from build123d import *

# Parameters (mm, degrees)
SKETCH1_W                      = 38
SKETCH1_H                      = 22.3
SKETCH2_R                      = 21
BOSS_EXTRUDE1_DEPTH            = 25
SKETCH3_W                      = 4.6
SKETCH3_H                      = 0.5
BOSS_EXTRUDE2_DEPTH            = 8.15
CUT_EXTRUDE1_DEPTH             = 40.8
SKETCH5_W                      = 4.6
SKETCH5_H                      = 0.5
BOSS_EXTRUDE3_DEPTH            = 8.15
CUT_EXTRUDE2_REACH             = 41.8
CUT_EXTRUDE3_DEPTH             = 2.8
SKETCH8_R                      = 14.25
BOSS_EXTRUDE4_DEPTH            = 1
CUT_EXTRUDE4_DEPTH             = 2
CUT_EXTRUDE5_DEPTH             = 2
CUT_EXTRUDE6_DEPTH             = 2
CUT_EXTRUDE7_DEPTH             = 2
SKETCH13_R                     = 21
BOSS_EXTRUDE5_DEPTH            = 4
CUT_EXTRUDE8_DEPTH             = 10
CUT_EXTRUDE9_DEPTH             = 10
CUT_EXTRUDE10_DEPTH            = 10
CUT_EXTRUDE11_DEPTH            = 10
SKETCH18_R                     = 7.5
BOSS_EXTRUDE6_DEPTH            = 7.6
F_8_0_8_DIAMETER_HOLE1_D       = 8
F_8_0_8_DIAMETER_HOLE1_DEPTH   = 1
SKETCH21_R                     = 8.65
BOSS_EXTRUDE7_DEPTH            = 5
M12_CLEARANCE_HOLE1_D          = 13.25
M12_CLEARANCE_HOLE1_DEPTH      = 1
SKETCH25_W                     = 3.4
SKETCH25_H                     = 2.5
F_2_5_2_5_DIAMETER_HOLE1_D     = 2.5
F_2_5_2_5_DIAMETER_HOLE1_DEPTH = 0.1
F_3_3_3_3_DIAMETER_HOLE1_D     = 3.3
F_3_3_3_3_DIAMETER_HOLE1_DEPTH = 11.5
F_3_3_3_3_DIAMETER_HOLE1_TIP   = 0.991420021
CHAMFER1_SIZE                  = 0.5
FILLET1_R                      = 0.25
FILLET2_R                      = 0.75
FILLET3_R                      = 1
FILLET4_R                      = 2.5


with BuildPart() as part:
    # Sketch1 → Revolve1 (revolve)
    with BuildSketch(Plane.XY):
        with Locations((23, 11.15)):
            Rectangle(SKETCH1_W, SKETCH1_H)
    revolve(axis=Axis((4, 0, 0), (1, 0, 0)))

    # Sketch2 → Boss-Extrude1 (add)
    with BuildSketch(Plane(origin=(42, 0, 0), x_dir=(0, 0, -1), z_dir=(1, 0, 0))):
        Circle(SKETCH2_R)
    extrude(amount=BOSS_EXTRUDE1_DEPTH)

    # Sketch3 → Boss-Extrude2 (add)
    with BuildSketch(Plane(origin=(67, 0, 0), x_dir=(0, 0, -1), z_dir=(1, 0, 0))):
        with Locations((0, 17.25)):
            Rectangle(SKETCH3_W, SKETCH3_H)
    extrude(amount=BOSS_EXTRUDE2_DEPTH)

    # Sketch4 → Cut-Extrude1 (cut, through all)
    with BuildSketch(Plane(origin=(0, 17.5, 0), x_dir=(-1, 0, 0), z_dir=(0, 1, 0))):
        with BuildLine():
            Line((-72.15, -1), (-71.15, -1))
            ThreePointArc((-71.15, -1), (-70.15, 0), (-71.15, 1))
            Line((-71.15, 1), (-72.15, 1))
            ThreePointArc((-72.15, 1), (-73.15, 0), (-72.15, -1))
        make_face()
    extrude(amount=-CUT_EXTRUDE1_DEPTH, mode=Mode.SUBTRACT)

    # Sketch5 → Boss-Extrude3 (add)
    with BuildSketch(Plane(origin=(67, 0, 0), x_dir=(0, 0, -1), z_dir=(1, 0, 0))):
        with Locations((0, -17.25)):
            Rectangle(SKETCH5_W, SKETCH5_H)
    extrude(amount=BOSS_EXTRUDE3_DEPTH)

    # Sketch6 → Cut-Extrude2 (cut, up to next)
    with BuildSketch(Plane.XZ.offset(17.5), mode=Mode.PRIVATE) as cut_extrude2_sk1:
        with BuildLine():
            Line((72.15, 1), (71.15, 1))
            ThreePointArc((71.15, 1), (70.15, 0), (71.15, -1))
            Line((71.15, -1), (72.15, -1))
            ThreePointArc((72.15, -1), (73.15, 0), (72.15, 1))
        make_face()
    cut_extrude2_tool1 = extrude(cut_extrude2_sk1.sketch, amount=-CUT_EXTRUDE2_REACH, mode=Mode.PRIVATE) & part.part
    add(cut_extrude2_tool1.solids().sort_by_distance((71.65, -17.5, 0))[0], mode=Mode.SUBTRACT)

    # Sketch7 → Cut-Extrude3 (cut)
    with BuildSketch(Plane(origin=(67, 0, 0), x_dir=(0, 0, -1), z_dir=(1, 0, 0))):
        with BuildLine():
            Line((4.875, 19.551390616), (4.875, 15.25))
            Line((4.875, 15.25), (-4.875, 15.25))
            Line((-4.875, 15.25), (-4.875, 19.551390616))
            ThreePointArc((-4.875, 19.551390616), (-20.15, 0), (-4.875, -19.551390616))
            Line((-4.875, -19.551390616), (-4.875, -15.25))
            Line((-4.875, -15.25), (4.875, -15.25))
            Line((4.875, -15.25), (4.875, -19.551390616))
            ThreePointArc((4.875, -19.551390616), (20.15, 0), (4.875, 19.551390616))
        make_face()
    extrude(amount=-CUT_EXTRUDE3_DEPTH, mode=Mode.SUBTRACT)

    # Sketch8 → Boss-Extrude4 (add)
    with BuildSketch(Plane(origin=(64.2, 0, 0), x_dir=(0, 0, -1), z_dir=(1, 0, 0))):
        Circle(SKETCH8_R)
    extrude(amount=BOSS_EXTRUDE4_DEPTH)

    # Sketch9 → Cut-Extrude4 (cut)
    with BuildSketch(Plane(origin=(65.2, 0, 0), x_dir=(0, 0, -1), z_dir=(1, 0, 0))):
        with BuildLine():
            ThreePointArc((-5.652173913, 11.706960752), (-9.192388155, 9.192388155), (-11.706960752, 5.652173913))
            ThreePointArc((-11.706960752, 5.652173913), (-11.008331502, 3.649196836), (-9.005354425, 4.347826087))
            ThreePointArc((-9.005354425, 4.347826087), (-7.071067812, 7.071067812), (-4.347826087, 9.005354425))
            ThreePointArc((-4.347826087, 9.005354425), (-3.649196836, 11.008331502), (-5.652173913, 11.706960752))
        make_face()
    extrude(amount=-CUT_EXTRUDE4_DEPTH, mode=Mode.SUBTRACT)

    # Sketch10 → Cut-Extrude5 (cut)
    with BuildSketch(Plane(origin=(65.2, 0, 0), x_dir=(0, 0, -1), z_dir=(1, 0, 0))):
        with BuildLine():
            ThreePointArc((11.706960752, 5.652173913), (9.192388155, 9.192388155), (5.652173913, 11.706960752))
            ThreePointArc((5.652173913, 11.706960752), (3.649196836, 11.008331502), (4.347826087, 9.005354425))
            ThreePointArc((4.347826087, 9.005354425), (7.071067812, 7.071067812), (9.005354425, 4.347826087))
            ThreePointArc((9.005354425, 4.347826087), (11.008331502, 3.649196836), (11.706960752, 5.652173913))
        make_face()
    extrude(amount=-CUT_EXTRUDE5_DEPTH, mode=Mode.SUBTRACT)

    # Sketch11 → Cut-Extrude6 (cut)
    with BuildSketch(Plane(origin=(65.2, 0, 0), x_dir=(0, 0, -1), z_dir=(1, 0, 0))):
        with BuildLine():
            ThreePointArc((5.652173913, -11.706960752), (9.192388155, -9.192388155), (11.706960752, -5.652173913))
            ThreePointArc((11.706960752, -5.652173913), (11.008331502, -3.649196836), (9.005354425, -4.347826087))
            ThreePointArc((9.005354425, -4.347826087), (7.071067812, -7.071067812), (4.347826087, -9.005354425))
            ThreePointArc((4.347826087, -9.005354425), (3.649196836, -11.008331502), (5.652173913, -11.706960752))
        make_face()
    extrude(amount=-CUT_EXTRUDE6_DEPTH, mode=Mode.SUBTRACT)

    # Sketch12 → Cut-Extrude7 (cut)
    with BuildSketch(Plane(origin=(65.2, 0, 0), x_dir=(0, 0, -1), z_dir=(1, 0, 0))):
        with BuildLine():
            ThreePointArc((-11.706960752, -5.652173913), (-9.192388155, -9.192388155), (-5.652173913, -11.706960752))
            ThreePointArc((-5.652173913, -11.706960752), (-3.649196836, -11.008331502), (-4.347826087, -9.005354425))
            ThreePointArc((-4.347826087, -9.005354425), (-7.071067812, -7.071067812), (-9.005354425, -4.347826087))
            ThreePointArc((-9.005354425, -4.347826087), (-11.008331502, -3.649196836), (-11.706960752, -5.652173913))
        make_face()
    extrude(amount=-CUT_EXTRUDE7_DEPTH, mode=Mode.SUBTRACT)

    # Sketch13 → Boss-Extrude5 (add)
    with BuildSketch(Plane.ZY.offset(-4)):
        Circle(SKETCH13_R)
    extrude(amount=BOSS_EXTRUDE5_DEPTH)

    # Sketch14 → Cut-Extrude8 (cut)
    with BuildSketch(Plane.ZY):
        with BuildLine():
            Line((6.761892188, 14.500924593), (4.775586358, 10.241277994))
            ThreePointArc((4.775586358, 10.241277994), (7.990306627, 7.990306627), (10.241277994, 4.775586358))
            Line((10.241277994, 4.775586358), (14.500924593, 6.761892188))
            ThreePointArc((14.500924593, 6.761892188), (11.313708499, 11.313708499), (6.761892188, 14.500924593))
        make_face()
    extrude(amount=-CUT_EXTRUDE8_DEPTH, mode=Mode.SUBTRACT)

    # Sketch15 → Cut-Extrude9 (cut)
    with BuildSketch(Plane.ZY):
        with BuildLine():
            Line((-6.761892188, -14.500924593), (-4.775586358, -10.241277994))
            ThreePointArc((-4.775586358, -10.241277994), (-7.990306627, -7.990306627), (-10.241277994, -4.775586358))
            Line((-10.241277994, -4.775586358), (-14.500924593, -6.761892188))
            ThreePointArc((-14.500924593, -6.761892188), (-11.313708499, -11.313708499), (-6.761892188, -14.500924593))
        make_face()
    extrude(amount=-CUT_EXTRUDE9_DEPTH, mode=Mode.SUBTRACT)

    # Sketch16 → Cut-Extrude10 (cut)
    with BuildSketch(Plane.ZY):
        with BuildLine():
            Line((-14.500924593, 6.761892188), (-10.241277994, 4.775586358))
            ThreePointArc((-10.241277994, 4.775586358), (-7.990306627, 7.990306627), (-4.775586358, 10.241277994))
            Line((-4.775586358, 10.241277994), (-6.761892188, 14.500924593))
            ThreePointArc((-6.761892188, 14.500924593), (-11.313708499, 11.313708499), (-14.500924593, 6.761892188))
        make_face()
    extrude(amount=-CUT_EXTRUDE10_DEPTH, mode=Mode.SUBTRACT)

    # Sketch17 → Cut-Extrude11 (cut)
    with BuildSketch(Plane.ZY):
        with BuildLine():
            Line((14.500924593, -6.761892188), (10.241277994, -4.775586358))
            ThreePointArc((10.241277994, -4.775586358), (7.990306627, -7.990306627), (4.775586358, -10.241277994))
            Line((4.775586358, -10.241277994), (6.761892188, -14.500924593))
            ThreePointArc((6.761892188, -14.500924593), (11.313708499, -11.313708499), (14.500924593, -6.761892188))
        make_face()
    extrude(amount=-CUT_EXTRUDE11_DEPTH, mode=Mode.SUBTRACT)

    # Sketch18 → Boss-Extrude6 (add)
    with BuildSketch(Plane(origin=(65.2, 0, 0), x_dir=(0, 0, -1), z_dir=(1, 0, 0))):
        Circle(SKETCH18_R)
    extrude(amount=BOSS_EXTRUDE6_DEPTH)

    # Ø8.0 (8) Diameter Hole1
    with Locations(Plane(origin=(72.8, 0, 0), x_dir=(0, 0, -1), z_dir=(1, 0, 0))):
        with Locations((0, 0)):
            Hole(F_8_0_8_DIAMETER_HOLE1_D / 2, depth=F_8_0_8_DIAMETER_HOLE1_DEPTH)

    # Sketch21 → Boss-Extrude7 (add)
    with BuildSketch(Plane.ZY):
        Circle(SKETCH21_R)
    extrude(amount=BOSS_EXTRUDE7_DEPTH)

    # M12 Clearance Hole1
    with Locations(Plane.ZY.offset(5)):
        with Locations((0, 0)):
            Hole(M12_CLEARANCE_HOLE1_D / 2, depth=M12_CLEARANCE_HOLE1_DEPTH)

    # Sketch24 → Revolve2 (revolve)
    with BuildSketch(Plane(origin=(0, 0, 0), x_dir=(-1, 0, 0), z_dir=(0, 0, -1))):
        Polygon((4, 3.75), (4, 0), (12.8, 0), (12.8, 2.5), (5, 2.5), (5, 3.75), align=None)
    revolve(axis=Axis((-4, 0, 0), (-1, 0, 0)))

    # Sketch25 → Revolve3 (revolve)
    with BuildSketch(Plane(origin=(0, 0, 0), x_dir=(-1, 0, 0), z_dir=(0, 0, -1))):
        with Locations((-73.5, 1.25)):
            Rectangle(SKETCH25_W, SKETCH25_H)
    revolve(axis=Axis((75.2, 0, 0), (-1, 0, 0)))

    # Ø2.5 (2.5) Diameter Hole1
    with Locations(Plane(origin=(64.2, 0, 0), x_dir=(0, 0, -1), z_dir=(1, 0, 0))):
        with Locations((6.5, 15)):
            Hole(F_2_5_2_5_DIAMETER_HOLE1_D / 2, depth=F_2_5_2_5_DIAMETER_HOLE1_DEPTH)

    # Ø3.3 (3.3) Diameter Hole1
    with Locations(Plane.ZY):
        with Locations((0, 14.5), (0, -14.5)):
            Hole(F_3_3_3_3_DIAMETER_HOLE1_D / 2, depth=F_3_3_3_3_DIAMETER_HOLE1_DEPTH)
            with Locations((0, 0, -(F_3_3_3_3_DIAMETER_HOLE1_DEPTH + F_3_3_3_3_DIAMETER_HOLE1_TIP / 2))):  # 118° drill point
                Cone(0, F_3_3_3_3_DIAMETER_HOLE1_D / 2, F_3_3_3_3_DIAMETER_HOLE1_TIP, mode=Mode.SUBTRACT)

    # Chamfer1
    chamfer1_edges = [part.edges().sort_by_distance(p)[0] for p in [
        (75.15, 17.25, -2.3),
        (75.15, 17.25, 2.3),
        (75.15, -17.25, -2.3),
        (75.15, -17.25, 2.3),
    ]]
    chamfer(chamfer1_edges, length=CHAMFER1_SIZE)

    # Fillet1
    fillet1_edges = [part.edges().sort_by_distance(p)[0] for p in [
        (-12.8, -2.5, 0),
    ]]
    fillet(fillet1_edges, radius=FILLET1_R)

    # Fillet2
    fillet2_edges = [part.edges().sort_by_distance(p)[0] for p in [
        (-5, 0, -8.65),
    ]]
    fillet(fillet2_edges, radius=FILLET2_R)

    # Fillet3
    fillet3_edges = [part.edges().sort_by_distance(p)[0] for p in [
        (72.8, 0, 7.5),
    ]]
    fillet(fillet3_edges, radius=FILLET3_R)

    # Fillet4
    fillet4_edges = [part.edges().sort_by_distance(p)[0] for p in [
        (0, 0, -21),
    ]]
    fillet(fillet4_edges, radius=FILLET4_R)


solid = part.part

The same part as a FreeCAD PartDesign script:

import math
import FreeCAD as App
import Part
import Sketcher

V = App.Vector
Q = App.Units.Quantity


def edges_at(feature, points):
    """Names of the edges that pass closest to the given points."""
    edges = feature.Shape.Edges
    near = lambda p: min(range(len(edges)), key=lambda i: edges[i].distToShape(Part.Vertex(*p))[0])
    return sorted({f"Edge{near(p) + 1}" for p in points})

doc = App.newDocument("Part")
body = doc.addObject("PartDesign::Body", "Body")

# Sketch on XY plane
sketch1 = doc.addObject("Sketcher::SketchObject", "Sketch")
body.addObject(sketch1)
sketch1.AttachmentSupport = (doc.XY_Plane, [""])
sketch1.MapMode = "FlatFace"
sketch1.addGeometry([
    Part.LineSegment(V(4, 22, 0), V(4, 0, 0)),
    Part.LineSegment(V(4, 0, 0), V(42, 0, 0)),
    Part.LineSegment(V(42, 0, 0), V(42, 22, 0)),
    Part.LineSegment(V(42, 22, 0), V(4, 22, 0)),
], False)
sketch1.addConstraint([
    Sketcher.Constraint("Coincident", 0, 2, 1, 1),
    Sketcher.Constraint("Coincident", 1, 2, 2, 1),
    Sketcher.Constraint("Coincident", 2, 2, 3, 1),
    Sketcher.Constraint("Coincident", 3, 2, 0, 1),
    Sketcher.Constraint("Vertical", 0),
    Sketcher.Constraint("Horizontal", 1),
    Sketcher.Constraint("Vertical", 2),
    Sketcher.Constraint("Horizontal", 3),
    Sketcher.Constraint("PointOnObject", 0, 2, -1),
    Sketcher.Constraint("DistanceX", 1, 1, 1, 2, 38.0),
    Sketcher.Constraint("DistanceY", 0, 2, 0, 1, 22.3),
    Sketcher.Constraint("DistanceX", -1, 1, 0, 2, 4.0),
])
revolution = doc.addObject("PartDesign::Revolution", "Revolution")
body.addObject(revolution)
revolution.Profile = sketch1
revolution.ReferenceAxis = (sketch1, ["H_Axis"])
revolution.Angle = 360

# Sketch on YZ plane
sketch2 = doc.addObject("Sketcher::SketchObject", "Sketch001")
body.addObject(sketch2)
sketch2.AttachmentSupport = (doc.YZ_Plane, [""])
sketch2.MapMode = "FlatFace"
sketch2.AttachmentOffset = App.Placement(V(0, 0, 42), App.Rotation())
sketch2.addGeometry(Part.Circle(V(0, 0, 0), V(0, 0, 1), 21), False)
sketch2.addConstraint([
    Sketcher.Constraint("Coincident", 0, 3, -1, 1),
    Sketcher.Constraint("Diameter", 0, 42.0),
])
pad1 = doc.addObject("PartDesign::Pad", "Pad")
body.addObject(pad1)
pad1.Profile = sketch2
pad1.Length = 25

# Sketch on YZ plane
sketch3 = doc.addObject("Sketcher::SketchObject", "Sketch002")
body.addObject(sketch3)
sketch3.AttachmentSupport = (doc.YZ_Plane, [""])
sketch3.MapMode = "FlatFace"
sketch3.AttachmentOffset = App.Placement(V(0, 0, 67), App.Rotation())
sketch3.addGeometry([
    Part.LineSegment(V(17.5, 2.3, 0), V(17, 2.3, 0)),
    Part.LineSegment(V(17, 2.3, 0), V(17, -2.3, 0)),
    Part.LineSegment(V(17, -2.3, 0), V(17.5, -2.3, 0)),
    Part.LineSegment(V(17.5, -2.3, 0), V(17.5, 2.3, 0)),
], False)
sketch3.addConstraint([
    Sketcher.Constraint("Coincident", 0, 2, 1, 1),
    Sketcher.Constraint("Coincident", 1, 2, 2, 1),
    Sketcher.Constraint("Coincident", 2, 2, 3, 1),
    Sketcher.Constraint("Coincident", 3, 2, 0, 1),
    Sketcher.Constraint("Horizontal", 0),
    Sketcher.Constraint("Vertical", 1),
    Sketcher.Constraint("Horizontal", 2),
    Sketcher.Constraint("Vertical", 3),
    Sketcher.Constraint("DistanceX", 0, 2, 0, 1, 0.5),
    Sketcher.Constraint("DistanceY", 1, 2, 1, 1, 4.6),
    Sketcher.Constraint("DistanceX", -1, 1, 0, 2, 17.0),
    Sketcher.Constraint("DistanceY", -1, 1, 0, 2, 2.3),
])
pad2 = doc.addObject("PartDesign::Pad", "Pad001")
body.addObject(pad2)
pad2.Profile = sketch3
pad2.Length = 8.15

# Sketch on XZ plane
sketch4 = doc.addObject("Sketcher::SketchObject", "Sketch003")
body.addObject(sketch4)
sketch4.AttachmentSupport = (doc.XZ_Plane, [""])
sketch4.MapMode = "FlatFace"
sketch4.AttachmentOffset = App.Placement(V(0, 0, -17.5), App.Rotation())
sketch4.addGeometry([
    Part.LineSegment(V(72.2, -1, 0), V(71.2, -1, 0)),
    Part.ArcOfCircle(Part.Circle(V(71.2, 0, 0), V(0, 0, 1), 1), math.radians(90), math.radians(270)),
    Part.LineSegment(V(71.2, 1, 0), V(72.2, 1, 0)),
    Part.ArcOfCircle(Part.Circle(V(72.2, 0, 0), V(0, 0, 1), 1), math.radians(-90), math.radians(90)),
], False)
sketch4.addConstraint([
    Sketcher.Constraint("Tangent", 0, 2, 1, 2),
    Sketcher.Constraint("Tangent", 1, 1, 2, 1),
    Sketcher.Constraint("Tangent", 2, 2, 3, 2),
    Sketcher.Constraint("Tangent", 3, 1, 0, 1),
    Sketcher.Constraint("Horizontal", 0),
    Sketcher.Constraint("Horizontal", 2),
    Sketcher.Constraint("PointOnObject", 1, 3, -1),
    Sketcher.Constraint("Radius", 1, 1.0),
    Sketcher.Constraint("DistanceX", 0, 2, 0, 1, 1.0),
    Sketcher.Constraint("DistanceX", -1, 1, 1, 3, 71.15),
])
pocket1 = doc.addObject("PartDesign::Pocket", "Pocket")
body.addObject(pocket1)
pocket1.Profile = sketch4
pocket1.Type = "ThroughAll"
pocket1.Reversed = True

# Sketch on YZ plane
sketch5 = doc.addObject("Sketcher::SketchObject", "Sketch004")
body.addObject(sketch5)
sketch5.AttachmentSupport = (doc.YZ_Plane, [""])
sketch5.MapMode = "FlatFace"
sketch5.AttachmentOffset = App.Placement(V(0, 0, 67), App.Rotation())
sketch5.addGeometry([
    Part.LineSegment(V(-17, 2.3, 0), V(-17.5, 2.3, 0)),
    Part.LineSegment(V(-17.5, 2.3, 0), V(-17.5, -2.3, 0)),
    Part.LineSegment(V(-17.5, -2.3, 0), V(-17, -2.3, 0)),
    Part.LineSegment(V(-17, -2.3, 0), V(-17, 2.3, 0)),
], False)
sketch5.addConstraint([
    Sketcher.Constraint("Coincident", 0, 2, 1, 1),
    Sketcher.Constraint("Coincident", 1, 2, 2, 1),
    Sketcher.Constraint("Coincident", 2, 2, 3, 1),
    Sketcher.Constraint("Coincident", 3, 2, 0, 1),
    Sketcher.Constraint("Horizontal", 0),
    Sketcher.Constraint("Vertical", 1),
    Sketcher.Constraint("Horizontal", 2),
    Sketcher.Constraint("Vertical", 3),
    Sketcher.Constraint("DistanceX", 0, 2, 0, 1, 0.5),
    Sketcher.Constraint("DistanceY", 1, 2, 1, 1, 4.6),
    Sketcher.Constraint("DistanceX", 2, 2, -1, 1, 17.0),
    Sketcher.Constraint("DistanceY", -1, 1, 0, 2, 2.3),
])
pad3 = doc.addObject("PartDesign::Pad", "Pad002")
body.addObject(pad3)
pad3.Profile = sketch5
pad3.Length = 8.15

# Sketch on XZ plane
sketch6 = doc.addObject("Sketcher::SketchObject", "Sketch005")
body.addObject(sketch6)
sketch6.AttachmentSupport = (doc.XZ_Plane, [""])
sketch6.MapMode = "FlatFace"
sketch6.AttachmentOffset = App.Placement(V(0, 0, 17.5), App.Rotation())
sketch6.addGeometry([
    Part.LineSegment(V(72.2, 1, 0), V(71.2, 1, 0)),
    Part.ArcOfCircle(Part.Circle(V(71.2, 0, 0), V(0, 0, 1), 1), math.radians(90), math.radians(270)),
    Part.LineSegment(V(71.2, -1, 0), V(72.2, -1, 0)),
    Part.ArcOfCircle(Part.Circle(V(72.2, 0, 0), V(0, 0, 1), 1), math.radians(-90), math.radians(90)),
], False)
sketch6.addConstraint([
    Sketcher.Constraint("Tangent", 0, 2, 1, 1),
    Sketcher.Constraint("Tangent", 1, 2, 2, 1),
    Sketcher.Constraint("Tangent", 2, 2, 3, 1),
    Sketcher.Constraint("Tangent", 3, 2, 0, 1),
    Sketcher.Constraint("Horizontal", 0),
    Sketcher.Constraint("Horizontal", 2),
    Sketcher.Constraint("PointOnObject", 1, 3, -1),
    Sketcher.Constraint("Radius", 1, 1.0),
    Sketcher.Constraint("DistanceX", 0, 2, 0, 1, 1.0),
    Sketcher.Constraint("DistanceX", -1, 1, 1, 3, 71.15),
])
pocket2 = doc.addObject("PartDesign::Pocket", "Pocket001")
body.addObject(pocket2)
pocket2.Profile = sketch6
pocket2.Type = "UpToFirst"

# Sketch on YZ plane
sketch7 = doc.addObject("Sketcher::SketchObject", "Sketch006")
body.addObject(sketch7)
sketch7.AttachmentSupport = (doc.YZ_Plane, [""])
sketch7.MapMode = "FlatFace"
sketch7.AttachmentOffset = App.Placement(V(0, 0, 67), App.Rotation())
sketch7.addGeometry([
    Part.LineSegment(V(19.6, -4.9, 0), V(15.2, -4.9, 0)),  # 0
    Part.LineSegment(V(15.2, -4.9, 0), V(15.2, 4.9, 0)),  # 1
    Part.LineSegment(V(15.2, 4.9, 0), V(19.6, 4.9, 0)),  # 2
    Part.ArcOfCircle(Part.Circle(V(0, 0, 0), V(0, 0, 1), 20.2), math.radians(14), math.radians(166)),  # 3
    Part.LineSegment(V(-19.6, 4.9, 0), V(-15.2, 4.9, 0)),  # 4
    Part.LineSegment(V(-15.2, 4.9, 0), V(-15.2, -4.9, 0)),  # 5
    Part.LineSegment(V(-15.2, -4.9, 0), V(-19.6, -4.9, 0)),  # 6
    Part.ArcOfCircle(Part.Circle(V(0, 0, 0), V(0, 0, 1), 20.2), math.radians(-166), math.radians(-14)),  # 7
], False)
sketch7.addConstraint([
    Sketcher.Constraint("Coincident", 0, 2, 1, 1),
    Sketcher.Constraint("Coincident", 1, 2, 2, 1),
    Sketcher.Constraint("Coincident", 2, 2, 3, 1),
    Sketcher.Constraint("Coincident", 3, 2, 4, 1),
    Sketcher.Constraint("Coincident", 4, 2, 5, 1),
    Sketcher.Constraint("Coincident", 5, 2, 6, 1),
    Sketcher.Constraint("Coincident", 6, 2, 7, 1),
    Sketcher.Constraint("Coincident", 7, 2, 0, 1),
    Sketcher.Constraint("Horizontal", 0),
    Sketcher.Constraint("Vertical", 1),
    Sketcher.Constraint("Horizontal", 2),
    Sketcher.Constraint("Horizontal", 4),
    Sketcher.Constraint("Vertical", 5),
    Sketcher.Constraint("Horizontal", 6),
    Sketcher.Constraint("Coincident", 3, 3, -1, 1),
    Sketcher.Constraint("Coincident", 7, 3, -1, 1),
    Sketcher.Constraint("Equal", 3, 7),
    Sketcher.Constraint("Symmetric", 0, 2, 4, 2, -1, 1),
    Sketcher.Constraint("Horizontal", 2, 2, 3, 2),
    Sketcher.Constraint("Horizontal", 0, 2, 5, 2),
    Sketcher.Constraint("Radius", 3, 20.15),
    Sketcher.Constraint("DistanceY", 1, 1, 1, 2, 9.75),
    Sketcher.Constraint("DistanceX", 4, 2, 1, 2, 30.5),
])
pocket3 = doc.addObject("PartDesign::Pocket", "Pocket002")
body.addObject(pocket3)
pocket3.Profile = sketch7
pocket3.Length = 2.8

# Sketch on YZ plane
sketch8 = doc.addObject("Sketcher::SketchObject", "Sketch007")
body.addObject(sketch8)
sketch8.AttachmentSupport = (doc.YZ_Plane, [""])
sketch8.MapMode = "FlatFace"
sketch8.AttachmentOffset = App.Placement(V(0, 0, 64.2), App.Rotation())
sketch8.addGeometry(Part.Circle(V(0, 0, 0), V(0, 0, 1), 14), False)
sketch8.addConstraint([
    Sketcher.Constraint("Coincident", 0, 3, -1, 1),
    Sketcher.Constraint("Diameter", 0, 28.5),
])
pad4 = doc.addObject("PartDesign::Pad", "Pad003")
body.addObject(pad4)
pad4.Profile = sketch8
pad4.Length = 1

# Sketch on YZ plane
sketch9 = doc.addObject("Sketcher::SketchObject", "Sketch008")
body.addObject(sketch9)
sketch9.AttachmentSupport = (doc.YZ_Plane, [""])
sketch9.MapMode = "FlatFace"
sketch9.AttachmentOffset = App.Placement(V(0, 0, 65.2), App.Rotation())
sketch9.addGeometry([
    Part.ArcOfCircle(Part.Circle(V(0, 0, 0), V(0, 0, 1), 13), math.radians(26), math.radians(64)),
    Part.ArcOfCircle(Part.Circle(V(5, 10.4, 0), V(0, 0, 1), 1.5), math.radians(64), math.radians(244)),
    Part.ArcOfCircle(Part.Circle(V(0, 0, 0), V(0, 0, 1), 10), math.radians(26), math.radians(64)),
    Part.ArcOfCircle(Part.Circle(V(10.4, 5, 0), V(0, 0, 1), 1.5), math.radians(-154), math.radians(26)),
], False)
sketch9.addConstraint([
    Sketcher.Constraint("Tangent", 0, 2, 1, 1),
    Sketcher.Constraint("Tangent", 1, 2, 2, 2),
    Sketcher.Constraint("Tangent", 2, 1, 3, 1),
    Sketcher.Constraint("Tangent", 3, 2, 0, 1),
    Sketcher.Constraint("Coincident", 0, 3, -1, 1),
    Sketcher.Constraint("Coincident", 2, 3, -1, 1),
    Sketcher.Constraint("Radius", 0, 13.0),
    Sketcher.Constraint("Radius", 2, 10.0),
    Sketcher.Constraint("DistanceX", -1, 1, 1, 3, 5.0),
    Sketcher.Constraint("DistanceY", -1, 1, 3, 3, 5.0),
])
pocket4 = doc.addObject("PartDesign::Pocket", "Pocket003")
body.addObject(pocket4)
pocket4.Profile = sketch9
pocket4.Length = 2

# Sketch on YZ plane
sketch10 = doc.addObject("Sketcher::SketchObject", "Sketch009")
body.addObject(sketch10)
sketch10.AttachmentSupport = (doc.YZ_Plane, [""])
sketch10.MapMode = "FlatFace"
sketch10.AttachmentOffset = App.Placement(V(0, 0, 65.2), App.Rotation())
sketch10.addGeometry([
    Part.ArcOfCircle(Part.Circle(V(0, 0, 0), V(0, 0, 1), 13), math.radians(-64), math.radians(-26)),
    Part.ArcOfCircle(Part.Circle(V(10.4, -5, 0), V(0, 0, 1), 1.5), math.radians(-26), math.radians(154)),
    Part.ArcOfCircle(Part.Circle(V(0, 0, 0), V(0, 0, 1), 10), math.radians(-64), math.radians(-26)),
    Part.ArcOfCircle(Part.Circle(V(5, -10.4, 0), V(0, 0, 1), 1.5), math.radians(116), math.radians(296)),
], False)
sketch10.addConstraint([
    Sketcher.Constraint("Tangent", 0, 2, 1, 1),
    Sketcher.Constraint("Tangent", 1, 2, 2, 2),
    Sketcher.Constraint("Tangent", 2, 1, 3, 1),
    Sketcher.Constraint("Tangent", 3, 2, 0, 1),
    Sketcher.Constraint("Coincident", 0, 3, -1, 1),
    Sketcher.Constraint("Coincident", 2, 3, -1, 1),
    Sketcher.Constraint("Radius", 0, 13.0),
    Sketcher.Constraint("Radius", 2, 10.0),
    Sketcher.Constraint("DistanceY", 1, 3, -1, 1, 5.0),
    Sketcher.Constraint("DistanceX", -1, 1, 3, 3, 5.0),
])
pocket5 = doc.addObject("PartDesign::Pocket", "Pocket004")
body.addObject(pocket5)
pocket5.Profile = sketch10
pocket5.Length = 2

# Sketch on YZ plane
sketch11 = doc.addObject("Sketcher::SketchObject", "Sketch010")
body.addObject(sketch11)
sketch11.AttachmentSupport = (doc.YZ_Plane, [""])
sketch11.MapMode = "FlatFace"
sketch11.AttachmentOffset = App.Placement(V(0, 0, 65.2), App.Rotation())
sketch11.addGeometry([
    Part.ArcOfCircle(Part.Circle(V(0, 0, 0), V(0, 0, 1), 13), math.radians(-154), math.radians(-116)),
    Part.ArcOfCircle(Part.Circle(V(-5, -10.4, 0), V(0, 0, 1), 1.5), math.radians(-116), math.radians(64)),
    Part.ArcOfCircle(Part.Circle(V(0, 0, 0), V(0, 0, 1), 10), math.radians(-154), math.radians(-116)),
    Part.ArcOfCircle(Part.Circle(V(-10.4, -5, 0), V(0, 0, 1), 1.5), math.radians(26), math.radians(206)),
], False)
sketch11.addConstraint([
    Sketcher.Constraint("Tangent", 0, 2, 1, 1),
    Sketcher.Constraint("Tangent", 1, 2, 2, 2),
    Sketcher.Constraint("Tangent", 2, 1, 3, 1),
    Sketcher.Constraint("Tangent", 3, 2, 0, 1),
    Sketcher.Constraint("Coincident", 0, 3, -1, 1),
    Sketcher.Constraint("Coincident", 2, 3, -1, 1),
    Sketcher.Constraint("Radius", 0, 13.0),
    Sketcher.Constraint("Radius", 2, 10.0),
    Sketcher.Constraint("DistanceX", 1, 3, -1, 1, 5.0),
    Sketcher.Constraint("DistanceY", 3, 3, -1, 1, 5.0),
])
pocket6 = doc.addObject("PartDesign::Pocket", "Pocket005")
body.addObject(pocket6)
pocket6.Profile = sketch11
pocket6.Length = 2

# Sketch on YZ plane
sketch12 = doc.addObject("Sketcher::SketchObject", "Sketch011")
body.addObject(sketch12)
sketch12.AttachmentSupport = (doc.YZ_Plane, [""])
sketch12.MapMode = "FlatFace"
sketch12.AttachmentOffset = App.Placement(V(0, 0, 65.2), App.Rotation())
sketch12.addGeometry([
    Part.ArcOfCircle(Part.Circle(V(0, 0, 0), V(0, 0, 1), 13), math.radians(116), math.radians(154)),
    Part.ArcOfCircle(Part.Circle(V(-10.4, 5, 0), V(0, 0, 1), 1.5), math.radians(154), math.radians(334)),
    Part.ArcOfCircle(Part.Circle(V(0, 0, 0), V(0, 0, 1), 10), math.radians(116), math.radians(154)),
    Part.ArcOfCircle(Part.Circle(V(-5, 10.4, 0), V(0, 0, 1), 1.5), math.radians(-64), math.radians(116)),
], False)
sketch12.addConstraint([
    Sketcher.Constraint("Tangent", 0, 2, 1, 1),
    Sketcher.Constraint("Tangent", 1, 2, 2, 2),
    Sketcher.Constraint("Tangent", 2, 1, 3, 1),
    Sketcher.Constraint("Tangent", 3, 2, 0, 1),
    Sketcher.Constraint("Coincident", 0, 3, -1, 1),
    Sketcher.Constraint("Coincident", 2, 3, -1, 1),
    Sketcher.Constraint("Radius", 0, 13.0),
    Sketcher.Constraint("Radius", 2, 10.0),
    Sketcher.Constraint("DistanceY", -1, 1, 1, 3, 5.0),
    Sketcher.Constraint("DistanceX", 3, 3, -1, 1, 5.0),
])
pocket7 = doc.addObject("PartDesign::Pocket", "Pocket006")
body.addObject(pocket7)
pocket7.Profile = sketch12
pocket7.Length = 2

# Sketch on YZ plane
sketch13 = doc.addObject("Sketcher::SketchObject", "Sketch012")
body.addObject(sketch13)
sketch13.AttachmentSupport = (doc.YZ_Plane, [""])
sketch13.MapMode = "FlatFace"
sketch13.AttachmentOffset = App.Placement(V(0, 0, 4), App.Rotation())
sketch13.addGeometry(Part.Circle(V(0, 0, 0), V(0, 0, 1), 21), False)
sketch13.addConstraint([
    Sketcher.Constraint("Coincident", 0, 3, -1, 1),
    Sketcher.Constraint("Diameter", 0, 42.0),
])
pad5 = doc.addObject("PartDesign::Pad", "Pad004")
body.addObject(pad5)
pad5.Profile = sketch13
pad5.Length = 4
pad5.Reversed = True

# Sketch on YZ plane
sketch14 = doc.addObject("Sketcher::SketchObject", "Sketch013")
body.addObject(sketch14)
sketch14.AttachmentSupport = (doc.YZ_Plane, [""])
sketch14.MapMode = "FlatFace"
sketch14.addGeometry([
    Part.LineSegment(V(14.5, 6.8, 0), V(10.2, 4.8, 0)),
    Part.ArcOfCircle(Part.Circle(V(0, 0, 0), V(0, 0, 1), 11.3), math.radians(25), math.radians(65)),
    Part.LineSegment(V(4.8, 10.2, 0), V(6.8, 14.5, 0)),
    Part.ArcOfCircle(Part.Circle(V(0, 0, 0), V(0, 0, 1), 16), math.radians(25), math.radians(65)),
], False)
sketch14.addConstraint([
    Sketcher.Constraint("Coincident", 0, 2, 1, 1),
    Sketcher.Constraint("Coincident", 1, 2, 2, 1),
    Sketcher.Constraint("Coincident", 2, 2, 3, 2),
    Sketcher.Constraint("Coincident", 3, 1, 0, 1),
    Sketcher.Constraint("Coincident", 1, 3, -1, 1),
    Sketcher.Constraint("Coincident", 3, 3, -1, 1),
    Sketcher.Constraint("Radius", 3, 16.0),
    Sketcher.Constraint("Radius", 1, 11.3),
    Sketcher.Constraint("Angle", 0, Q("-155 deg")),
    Sketcher.Constraint("Angle", 2, Q("65 deg")),
    Sketcher.Constraint("DistanceX", 1, 3, 0, 2, 10.241278),
    Sketcher.Constraint("DistanceX", 1, 2, 0, 2, 5.465692),
])
pocket8 = doc.addObject("PartDesign::Pocket", "Pocket007")
body.addObject(pocket8)
pocket8.Profile = sketch14
pocket8.Length = 10
pocket8.Reversed = True

# Sketch on YZ plane
sketch15 = doc.addObject("Sketcher::SketchObject", "Sketch014")
body.addObject(sketch15)
sketch15.AttachmentSupport = (doc.YZ_Plane, [""])
sketch15.MapMode = "FlatFace"
sketch15.addGeometry([
    Part.LineSegment(V(-14.5, -6.8, 0), V(-10.2, -4.8, 0)),
    Part.ArcOfCircle(Part.Circle(V(0, 0, 0), V(0, 0, 1), 11.3), math.radians(-155), math.radians(-115)),
    Part.LineSegment(V(-4.8, -10.2, 0), V(-6.8, -14.5, 0)),
    Part.ArcOfCircle(Part.Circle(V(0, 0, 0), V(0, 0, 1), 16), math.radians(-155), math.radians(-115)),
], False)
sketch15.addConstraint([
    Sketcher.Constraint("Coincident", 0, 2, 1, 1),
    Sketcher.Constraint("Coincident", 1, 2, 2, 1),
    Sketcher.Constraint("Coincident", 2, 2, 3, 2),
    Sketcher.Constraint("Coincident", 3, 1, 0, 1),
    Sketcher.Constraint("Coincident", 1, 3, -1, 1),
    Sketcher.Constraint("Coincident", 3, 3, -1, 1),
    Sketcher.Constraint("Radius", 3, 16.0),
    Sketcher.Constraint("Radius", 1, 11.3),
    Sketcher.Constraint("Angle", 0, Q("25 deg")),
    Sketcher.Constraint("Angle", 2, Q("-115 deg")),
    Sketcher.Constraint("DistanceX", 0, 2, 1, 3, 10.241278),
    Sketcher.Constraint("DistanceX", 0, 2, 1, 2, 5.465692),
])
pocket9 = doc.addObject("PartDesign::Pocket", "Pocket008")
body.addObject(pocket9)
pocket9.Profile = sketch15
pocket9.Length = 10
pocket9.Reversed = True

# Sketch on YZ plane
sketch16 = doc.addObject("Sketcher::SketchObject", "Sketch015")
body.addObject(sketch16)
sketch16.AttachmentSupport = (doc.YZ_Plane, [""])
sketch16.MapMode = "FlatFace"
sketch16.addGeometry([
    Part.LineSegment(V(6.8, -14.5, 0), V(4.8, -10.2, 0)),
    Part.ArcOfCircle(Part.Circle(V(0, 0, 0), V(0, 0, 1), 11.3), math.radians(-65), math.radians(-25)),
    Part.LineSegment(V(10.2, -4.8, 0), V(14.5, -6.8, 0)),
    Part.ArcOfCircle(Part.Circle(V(0, 0, 0), V(0, 0, 1), 16), math.radians(-65), math.radians(-25)),
], False)
sketch16.addConstraint([
    Sketcher.Constraint("Coincident", 0, 2, 1, 1),
    Sketcher.Constraint("Coincident", 1, 2, 2, 1),
    Sketcher.Constraint("Coincident", 2, 2, 3, 2),
    Sketcher.Constraint("Coincident", 3, 1, 0, 1),
    Sketcher.Constraint("Coincident", 1, 3, -1, 1),
    Sketcher.Constraint("Coincident", 3, 3, -1, 1),
    Sketcher.Constraint("Radius", 3, 16.0),
    Sketcher.Constraint("Radius", 1, 11.3),
    Sketcher.Constraint("Angle", 0, Q("115 deg")),
    Sketcher.Constraint("Angle", 2, Q("-25 deg")),
    Sketcher.Constraint("DistanceY", 0, 2, 1, 3, 10.241278),
    Sketcher.Constraint("DistanceX", 0, 2, 1, 2, 5.465692),
])
pocket10 = doc.addObject("PartDesign::Pocket", "Pocket009")
body.addObject(pocket10)
pocket10.Profile = sketch16
pocket10.Length = 10
pocket10.Reversed = True

# Sketch on YZ plane
sketch17 = doc.addObject("Sketcher::SketchObject", "Sketch016")
body.addObject(sketch17)
sketch17.AttachmentSupport = (doc.YZ_Plane, [""])
sketch17.MapMode = "FlatFace"
sketch17.addGeometry([
    Part.LineSegment(V(-6.8, 14.5, 0), V(-4.8, 10.2, 0)),
    Part.ArcOfCircle(Part.Circle(V(0, 0, 0), V(0, 0, 1), 11.3), math.radians(115), math.radians(155)),
    Part.LineSegment(V(-10.2, 4.8, 0), V(-14.5, 6.8, 0)),
    Part.ArcOfCircle(Part.Circle(V(0, 0, 0), V(0, 0, 1), 16), math.radians(115), math.radians(155)),
], False)
sketch17.addConstraint([
    Sketcher.Constraint("Coincident", 0, 2, 1, 1),
    Sketcher.Constraint("Coincident", 1, 2, 2, 1),
    Sketcher.Constraint("Coincident", 2, 2, 3, 2),
    Sketcher.Constraint("Coincident", 3, 1, 0, 1),
    Sketcher.Constraint("Coincident", 1, 3, -1, 1),
    Sketcher.Constraint("Coincident", 3, 3, -1, 1),
    Sketcher.Constraint("Radius", 3, 16.0),
    Sketcher.Constraint("Radius", 1, 11.3),
    Sketcher.Constraint("Angle", 0, Q("-65 deg")),
    Sketcher.Constraint("Angle", 2, Q("155 deg")),
    Sketcher.Constraint("DistanceY", 1, 3, 0, 2, 10.241278),
    Sketcher.Constraint("DistanceX", 1, 2, 0, 2, 5.465692),
])
pocket11 = doc.addObject("PartDesign::Pocket", "Pocket010")
body.addObject(pocket11)
pocket11.Profile = sketch17
pocket11.Length = 10
pocket11.Reversed = True

# Sketch on YZ plane
sketch18 = doc.addObject("Sketcher::SketchObject", "Sketch017")
body.addObject(sketch18)
sketch18.AttachmentSupport = (doc.YZ_Plane, [""])
sketch18.MapMode = "FlatFace"
sketch18.AttachmentOffset = App.Placement(V(0, 0, 65.2), App.Rotation())
sketch18.addGeometry(Part.Circle(V(0, 0, 0), V(0, 0, 1), 8), False)
sketch18.addConstraint([
    Sketcher.Constraint("Coincident", 0, 3, -1, 1),
    Sketcher.Constraint("Diameter", 0, 15.0),
])
pad6 = doc.addObject("PartDesign::Pad", "Pad005")
body.addObject(pad6)
pad6.Profile = sketch18
pad6.Length = 7.6

# Sketch on YZ plane
sketch19 = doc.addObject("Sketcher::SketchObject", "Sketch018")
body.addObject(sketch19)
sketch19.AttachmentSupport = (doc.YZ_Plane, [""])
sketch19.MapMode = "FlatFace"
sketch19.AttachmentOffset = App.Placement(V(0, 0, 72.8), App.Rotation())
sketch19.addGeometry(Part.Circle(V(0, 0, 0), V(0, 0, 1), 4), False)
sketch19.addConstraint([
    Sketcher.Constraint("Coincident", 0, 3, -1, 1),
    Sketcher.Constraint("Diameter", 0, 8.0),
])
doc.recompute()
hole = doc.addObject("PartDesign::Hole", "Hole")
body.addObject(hole)
hole.Profile = sketch19
hole.ThreadType = "None"
hole.Diameter = 8
hole.DepthType = "Dimension"
hole.Depth = 1
hole.DrillPoint = "Flat"

# Sketch on YZ plane
sketch20 = doc.addObject("Sketcher::SketchObject", "Sketch019")
body.addObject(sketch20)
sketch20.AttachmentSupport = (doc.YZ_Plane, [""])
sketch20.MapMode = "FlatFace"
sketch20.addGeometry(Part.Circle(V(0, 0, 0), V(0, 0, 1), 9), False)
sketch20.addConstraint([
    Sketcher.Constraint("Coincident", 0, 3, -1, 1),
    Sketcher.Constraint("Diameter", 0, 17.3),
])
pad7 = doc.addObject("PartDesign::Pad", "Pad006")
body.addObject(pad7)
pad7.Profile = sketch20
pad7.Length = 5
pad7.Reversed = True

# Sketch on YZ plane
sketch21 = doc.addObject("Sketcher::SketchObject", "Sketch020")
body.addObject(sketch21)
sketch21.AttachmentSupport = (doc.YZ_Plane, [""])
sketch21.MapMode = "FlatFace"
sketch21.AttachmentOffset = App.Placement(V(0, 0, -5), App.Rotation())
sketch21.addGeometry(Part.Circle(V(0, 0, 0), V(0, 0, 1), 7), False)
sketch21.addConstraint([
    Sketcher.Constraint("Coincident", 0, 3, -1, 1),
    Sketcher.Constraint("Diameter", 0, 13.25),
])
doc.recompute()
hole2 = doc.addObject("PartDesign::Hole", "Hole001")
body.addObject(hole2)
hole2.Profile = sketch21
hole2.ThreadType = "None"
hole2.Diameter = 13.25
hole2.DepthType = "Dimension"
hole2.Depth = 1
hole2.DrillPoint = "Flat"
hole2.Reversed = True

# Sketch on XY plane
sketch22 = doc.addObject("Sketcher::SketchObject", "Sketch021")
body.addObject(sketch22)
sketch22.AttachmentSupport = (doc.XY_Plane, [""])
sketch22.MapMode = "FlatFace"
sketch22.addGeometry([
    Part.LineSegment(V(-4, 3.8, 0), V(-4, 0, 0)),  # 0
    Part.LineSegment(V(-4, 0, 0), V(-12.8, 0, 0)),  # 1
    Part.LineSegment(V(-12.8, 0, 0), V(-12.8, 2.5, 0)),  # 2
    Part.LineSegment(V(-12.8, 2.5, 0), V(-5, 2.5, 0)),  # 3
    Part.LineSegment(V(-5, 2.5, 0), V(-5, 3.8, 0)),  # 4
    Part.LineSegment(V(-5, 3.8, 0), V(-4, 3.8, 0)),  # 5
], False)
sketch22.addConstraint([
    Sketcher.Constraint("Coincident", 0, 2, 1, 1),
    Sketcher.Constraint("Coincident", 1, 2, 2, 1),
    Sketcher.Constraint("Coincident", 2, 2, 3, 1),
    Sketcher.Constraint("Coincident", 3, 2, 4, 1),
    Sketcher.Constraint("Coincident", 4, 2, 5, 1),
    Sketcher.Constraint("Coincident", 5, 2, 0, 1),
    Sketcher.Constraint("Vertical", 0),
    Sketcher.Constraint("Horizontal", 1),
    Sketcher.Constraint("Vertical", 2),
    Sketcher.Constraint("Horizontal", 3),
    Sketcher.Constraint("Vertical", 4),
    Sketcher.Constraint("Horizontal", 5),
    Sketcher.Constraint("PointOnObject", 0, 2, -1),
    Sketcher.Constraint("DistanceX", 5, 1, 5, 2, 1.0),
    Sketcher.Constraint("DistanceX", 1, 2, 1, 1, 8.8),
    Sketcher.Constraint("DistanceY", 2, 1, 2, 2, 2.5),
    Sketcher.Constraint("DistanceX", 0, 2, -1, 1, 4.0),
    Sketcher.Constraint("DistanceY", 0, 2, 0, 1, 3.75),
])
revolution2 = doc.addObject("PartDesign::Revolution", "Revolution001")
body.addObject(revolution2)
revolution2.Profile = sketch22
revolution2.ReferenceAxis = (sketch22, ["H_Axis"])
revolution2.Angle = 360

# Sketch on XY plane
sketch23 = doc.addObject("Sketcher::SketchObject", "Sketch022")
body.addObject(sketch23)
sketch23.AttachmentSupport = (doc.XY_Plane, [""])
sketch23.MapMode = "FlatFace"
sketch23.addGeometry([
    Part.LineSegment(V(75.2, 2.5, 0), V(75.2, 0, 0)),
    Part.LineSegment(V(75.2, 0, 0), V(71.8, 0, 0)),
    Part.LineSegment(V(71.8, 0, 0), V(71.8, 2.5, 0)),
    Part.LineSegment(V(71.8, 2.5, 0), V(75.2, 2.5, 0)),
], False)
sketch23.addConstraint([
    Sketcher.Constraint("Coincident", 0, 2, 1, 1),
    Sketcher.Constraint("Coincident", 1, 2, 2, 1),
    Sketcher.Constraint("Coincident", 2, 2, 3, 1),
    Sketcher.Constraint("Coincident", 3, 2, 0, 1),
    Sketcher.Constraint("Vertical", 0),
    Sketcher.Constraint("Horizontal", 1),
    Sketcher.Constraint("Vertical", 2),
    Sketcher.Constraint("Horizontal", 3),
    Sketcher.Constraint("PointOnObject", 0, 2, -1),
    Sketcher.Constraint("DistanceX", 1, 2, 1, 1, 3.4),
    Sketcher.Constraint("DistanceY", 0, 2, 0, 1, 2.5),
    Sketcher.Constraint("DistanceX", -1, 1, 0, 2, 75.2),
])
revolution3 = doc.addObject("PartDesign::Revolution", "Revolution002")
body.addObject(revolution3)
revolution3.Profile = sketch23
revolution3.ReferenceAxis = (sketch23, ["H_Axis"])
revolution3.Angle = 360

# Sketch on YZ plane
sketch24 = doc.addObject("Sketcher::SketchObject", "Sketch023")
body.addObject(sketch24)
sketch24.AttachmentSupport = (doc.YZ_Plane, [""])
sketch24.MapMode = "FlatFace"
sketch24.AttachmentOffset = App.Placement(V(0, 0, 64.2), App.Rotation())
sketch24.addGeometry(Part.Circle(V(15, -6.5, 0), V(0, 0, 1), 1.2), False)
sketch24.addConstraint([
    Sketcher.Constraint("Diameter", 0, 2.5),
    Sketcher.Constraint("DistanceX", -1, 1, 0, 3, 15.0),
    Sketcher.Constraint("DistanceY", 0, 3, -1, 1, 6.5),
])
doc.recompute()
hole3 = doc.addObject("PartDesign::Hole", "Hole002")
body.addObject(hole3)
hole3.Profile = sketch24
hole3.ThreadType = "None"
hole3.Diameter = 2.5
hole3.DepthType = "Dimension"
hole3.Depth = 0.1
hole3.DrillPoint = "Flat"

# Sketch on YZ plane
sketch25 = doc.addObject("Sketcher::SketchObject", "Sketch024")
body.addObject(sketch25)
sketch25.AttachmentSupport = (doc.YZ_Plane, [""])
sketch25.MapMode = "FlatFace"
sketch25.addGeometry([
    Part.Circle(V(14.5, 0, 0), V(0, 0, 1), 1.6),
    Part.Circle(V(-14.5, 0, 0), V(0, 0, 1), 1.6),
], False)
sketch25.addConstraint([
    Sketcher.Constraint("Equal", 0, 1),
    Sketcher.Constraint("Symmetric", 0, 3, 1, 3, -1, 1),
    Sketcher.Constraint("PointOnObject", 0, 3, -1),
    Sketcher.Constraint("Diameter", 0, 3.3),
    Sketcher.Constraint("DistanceX", 1, 3, 0, 3, 29.0),
])
doc.recompute()
hole4 = doc.addObject("PartDesign::Hole", "Hole003")
body.addObject(hole4)
hole4.Profile = sketch25
hole4.ThreadType = "None"
hole4.Diameter = 3.3
hole4.DepthType = "Dimension"
hole4.Depth = 11.5
hole4.DrillPoint = "Angled"
hole4.DrillPointAngle = 118
hole4.Reversed = True
doc.recompute()

chamfer = doc.addObject("PartDesign::Chamfer", "Chamfer")
body.addObject(chamfer)
chamfer.Base = (hole4, edges_at(hole4, [
    (75.15, 17.25, -2.3),
    (75.15, 17.25, 2.3),
    (75.15, -17.25, -2.3),
    (75.15, -17.25, 2.3),
]))
chamfer.Size = 0.5
doc.recompute()

fillet = doc.addObject("PartDesign::Fillet", "Fillet")
body.addObject(fillet)
fillet.Base = (chamfer, edges_at(chamfer, [(-12.8, -2.5, 0)]))
fillet.Radius = 0.25
doc.recompute()

fillet2 = doc.addObject("PartDesign::Fillet", "Fillet001")
body.addObject(fillet2)
fillet2.Base = (fillet, edges_at(fillet, [(-5, 0, -8.65)]))
fillet2.Radius = 0.75
doc.recompute()

fillet3 = doc.addObject("PartDesign::Fillet", "Fillet002")
body.addObject(fillet3)
fillet3.Base = (fillet2, edges_at(fillet2, [(72.8, 0, 7.5)]))
fillet3.Radius = 1
doc.recompute()

fillet4 = doc.addObject("PartDesign::Fillet", "Fillet003")
body.addObject(fillet4)
fillet4.Base = (fillet3, edges_at(fillet3, [(0, 0, -21)]))
fillet4.Radius = 2.5

doc.recompute()
